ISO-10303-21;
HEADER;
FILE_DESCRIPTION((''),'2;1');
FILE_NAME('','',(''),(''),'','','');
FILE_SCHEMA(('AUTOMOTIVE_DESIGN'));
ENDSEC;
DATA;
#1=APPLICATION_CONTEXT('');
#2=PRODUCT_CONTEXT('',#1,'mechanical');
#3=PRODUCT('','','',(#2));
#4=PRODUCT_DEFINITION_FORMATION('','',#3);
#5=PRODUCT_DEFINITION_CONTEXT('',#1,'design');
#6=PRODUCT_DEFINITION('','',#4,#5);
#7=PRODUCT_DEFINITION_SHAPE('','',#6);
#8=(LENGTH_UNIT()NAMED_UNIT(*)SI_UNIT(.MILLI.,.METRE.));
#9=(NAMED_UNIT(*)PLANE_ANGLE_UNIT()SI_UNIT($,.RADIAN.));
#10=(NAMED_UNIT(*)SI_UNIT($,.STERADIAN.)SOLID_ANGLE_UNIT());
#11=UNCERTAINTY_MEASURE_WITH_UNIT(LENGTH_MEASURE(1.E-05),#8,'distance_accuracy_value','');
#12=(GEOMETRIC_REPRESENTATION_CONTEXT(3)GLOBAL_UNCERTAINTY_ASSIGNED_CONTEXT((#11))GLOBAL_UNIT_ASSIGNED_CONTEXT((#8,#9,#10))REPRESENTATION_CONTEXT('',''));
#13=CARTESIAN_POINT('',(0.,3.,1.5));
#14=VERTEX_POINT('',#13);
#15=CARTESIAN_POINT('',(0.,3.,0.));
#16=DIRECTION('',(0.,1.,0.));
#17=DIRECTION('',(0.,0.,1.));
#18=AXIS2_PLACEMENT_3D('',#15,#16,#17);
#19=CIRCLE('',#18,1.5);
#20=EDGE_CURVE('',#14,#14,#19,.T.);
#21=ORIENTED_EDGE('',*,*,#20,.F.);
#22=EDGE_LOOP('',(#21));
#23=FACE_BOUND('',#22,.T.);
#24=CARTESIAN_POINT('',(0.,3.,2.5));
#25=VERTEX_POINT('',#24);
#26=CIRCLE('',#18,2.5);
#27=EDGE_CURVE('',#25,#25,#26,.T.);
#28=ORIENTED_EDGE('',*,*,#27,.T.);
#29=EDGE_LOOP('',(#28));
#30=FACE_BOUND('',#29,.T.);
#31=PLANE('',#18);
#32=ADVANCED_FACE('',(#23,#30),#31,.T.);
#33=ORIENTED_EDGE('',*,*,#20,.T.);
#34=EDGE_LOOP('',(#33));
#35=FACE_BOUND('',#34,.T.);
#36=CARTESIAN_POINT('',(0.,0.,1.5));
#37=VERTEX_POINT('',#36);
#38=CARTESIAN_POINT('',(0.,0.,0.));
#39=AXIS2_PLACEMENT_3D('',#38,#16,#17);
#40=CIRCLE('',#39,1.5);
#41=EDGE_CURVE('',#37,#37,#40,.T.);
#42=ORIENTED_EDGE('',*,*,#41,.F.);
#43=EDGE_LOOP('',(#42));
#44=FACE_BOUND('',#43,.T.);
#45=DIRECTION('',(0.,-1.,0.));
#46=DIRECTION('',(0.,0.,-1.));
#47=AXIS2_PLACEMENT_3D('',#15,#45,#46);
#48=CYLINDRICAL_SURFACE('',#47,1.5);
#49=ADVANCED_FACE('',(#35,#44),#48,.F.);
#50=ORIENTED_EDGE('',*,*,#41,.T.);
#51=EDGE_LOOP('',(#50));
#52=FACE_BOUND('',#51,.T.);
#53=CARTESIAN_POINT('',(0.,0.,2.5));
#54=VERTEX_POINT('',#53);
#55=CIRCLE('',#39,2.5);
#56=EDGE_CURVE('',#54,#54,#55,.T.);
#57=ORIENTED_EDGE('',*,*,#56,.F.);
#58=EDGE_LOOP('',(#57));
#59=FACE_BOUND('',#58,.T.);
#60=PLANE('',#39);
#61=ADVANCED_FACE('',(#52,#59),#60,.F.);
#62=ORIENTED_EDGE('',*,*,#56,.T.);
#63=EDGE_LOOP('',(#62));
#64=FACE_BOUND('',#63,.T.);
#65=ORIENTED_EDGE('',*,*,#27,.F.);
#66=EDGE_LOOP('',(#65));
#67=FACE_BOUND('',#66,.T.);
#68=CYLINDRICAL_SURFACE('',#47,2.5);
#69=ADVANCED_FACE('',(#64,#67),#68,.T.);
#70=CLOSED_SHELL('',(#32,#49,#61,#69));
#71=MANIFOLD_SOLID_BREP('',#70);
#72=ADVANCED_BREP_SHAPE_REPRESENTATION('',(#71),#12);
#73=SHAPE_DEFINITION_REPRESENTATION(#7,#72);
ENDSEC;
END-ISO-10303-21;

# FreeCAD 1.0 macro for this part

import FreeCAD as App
import Part
import Sketcher

doc = App.newDocument("Part")
params = doc.addObject("Spreadsheet::Sheet", "Params")
for row, (alias, value) in enumerate([
    ("sketch1_diameter", "5 mm"),
    ("sketch1_diameter2", "3 mm"),
    ("pad1_length", "3 mm"),
], start=1):
    params.set(f"A{row}", alias)
    params.set(f"B{row}", "=" + value)
    params.setAlias(f"B{row}", alias)

body = doc.addObject("PartDesign::Body", "Body")

sketch1 = body.newObject("Sketcher::SketchObject", "Sketch")
sketch1.AttachmentSupport = (doc.getObject("XZ_Plane"), [""])
sketch1.MapMode = "FlatFace"
sketch1.addGeometry([
    Part.Circle(App.Vector(0, 0, 0), App.Vector(0, 0, 1), 2.5),
    Part.Circle(App.Vector(0, 0, 0), App.Vector(0, 0, 1), 1.5),
], False)
sketch1.addConstraint([
    Sketcher.Constraint("Coincident", 0, 3, -1, 1),
    Sketcher.Constraint("Coincident", 1, 3, -1, 1),
    Sketcher.Constraint("Diameter", 0, 5.0),
    Sketcher.Constraint("Diameter", 1, 3.0),
])
sketch1.setExpression("Constraints[2]", "Params.sketch1_diameter")
sketch1.setExpression("Constraints[3]", "Params.sketch1_diameter2")
pad1 = body.newObject("PartDesign::Pad", "Pad")
pad1.Profile = sketch1
pad1.setExpression("Length", "Params.pad1_length")
pad1.Reversed = True

doc.recompute()
